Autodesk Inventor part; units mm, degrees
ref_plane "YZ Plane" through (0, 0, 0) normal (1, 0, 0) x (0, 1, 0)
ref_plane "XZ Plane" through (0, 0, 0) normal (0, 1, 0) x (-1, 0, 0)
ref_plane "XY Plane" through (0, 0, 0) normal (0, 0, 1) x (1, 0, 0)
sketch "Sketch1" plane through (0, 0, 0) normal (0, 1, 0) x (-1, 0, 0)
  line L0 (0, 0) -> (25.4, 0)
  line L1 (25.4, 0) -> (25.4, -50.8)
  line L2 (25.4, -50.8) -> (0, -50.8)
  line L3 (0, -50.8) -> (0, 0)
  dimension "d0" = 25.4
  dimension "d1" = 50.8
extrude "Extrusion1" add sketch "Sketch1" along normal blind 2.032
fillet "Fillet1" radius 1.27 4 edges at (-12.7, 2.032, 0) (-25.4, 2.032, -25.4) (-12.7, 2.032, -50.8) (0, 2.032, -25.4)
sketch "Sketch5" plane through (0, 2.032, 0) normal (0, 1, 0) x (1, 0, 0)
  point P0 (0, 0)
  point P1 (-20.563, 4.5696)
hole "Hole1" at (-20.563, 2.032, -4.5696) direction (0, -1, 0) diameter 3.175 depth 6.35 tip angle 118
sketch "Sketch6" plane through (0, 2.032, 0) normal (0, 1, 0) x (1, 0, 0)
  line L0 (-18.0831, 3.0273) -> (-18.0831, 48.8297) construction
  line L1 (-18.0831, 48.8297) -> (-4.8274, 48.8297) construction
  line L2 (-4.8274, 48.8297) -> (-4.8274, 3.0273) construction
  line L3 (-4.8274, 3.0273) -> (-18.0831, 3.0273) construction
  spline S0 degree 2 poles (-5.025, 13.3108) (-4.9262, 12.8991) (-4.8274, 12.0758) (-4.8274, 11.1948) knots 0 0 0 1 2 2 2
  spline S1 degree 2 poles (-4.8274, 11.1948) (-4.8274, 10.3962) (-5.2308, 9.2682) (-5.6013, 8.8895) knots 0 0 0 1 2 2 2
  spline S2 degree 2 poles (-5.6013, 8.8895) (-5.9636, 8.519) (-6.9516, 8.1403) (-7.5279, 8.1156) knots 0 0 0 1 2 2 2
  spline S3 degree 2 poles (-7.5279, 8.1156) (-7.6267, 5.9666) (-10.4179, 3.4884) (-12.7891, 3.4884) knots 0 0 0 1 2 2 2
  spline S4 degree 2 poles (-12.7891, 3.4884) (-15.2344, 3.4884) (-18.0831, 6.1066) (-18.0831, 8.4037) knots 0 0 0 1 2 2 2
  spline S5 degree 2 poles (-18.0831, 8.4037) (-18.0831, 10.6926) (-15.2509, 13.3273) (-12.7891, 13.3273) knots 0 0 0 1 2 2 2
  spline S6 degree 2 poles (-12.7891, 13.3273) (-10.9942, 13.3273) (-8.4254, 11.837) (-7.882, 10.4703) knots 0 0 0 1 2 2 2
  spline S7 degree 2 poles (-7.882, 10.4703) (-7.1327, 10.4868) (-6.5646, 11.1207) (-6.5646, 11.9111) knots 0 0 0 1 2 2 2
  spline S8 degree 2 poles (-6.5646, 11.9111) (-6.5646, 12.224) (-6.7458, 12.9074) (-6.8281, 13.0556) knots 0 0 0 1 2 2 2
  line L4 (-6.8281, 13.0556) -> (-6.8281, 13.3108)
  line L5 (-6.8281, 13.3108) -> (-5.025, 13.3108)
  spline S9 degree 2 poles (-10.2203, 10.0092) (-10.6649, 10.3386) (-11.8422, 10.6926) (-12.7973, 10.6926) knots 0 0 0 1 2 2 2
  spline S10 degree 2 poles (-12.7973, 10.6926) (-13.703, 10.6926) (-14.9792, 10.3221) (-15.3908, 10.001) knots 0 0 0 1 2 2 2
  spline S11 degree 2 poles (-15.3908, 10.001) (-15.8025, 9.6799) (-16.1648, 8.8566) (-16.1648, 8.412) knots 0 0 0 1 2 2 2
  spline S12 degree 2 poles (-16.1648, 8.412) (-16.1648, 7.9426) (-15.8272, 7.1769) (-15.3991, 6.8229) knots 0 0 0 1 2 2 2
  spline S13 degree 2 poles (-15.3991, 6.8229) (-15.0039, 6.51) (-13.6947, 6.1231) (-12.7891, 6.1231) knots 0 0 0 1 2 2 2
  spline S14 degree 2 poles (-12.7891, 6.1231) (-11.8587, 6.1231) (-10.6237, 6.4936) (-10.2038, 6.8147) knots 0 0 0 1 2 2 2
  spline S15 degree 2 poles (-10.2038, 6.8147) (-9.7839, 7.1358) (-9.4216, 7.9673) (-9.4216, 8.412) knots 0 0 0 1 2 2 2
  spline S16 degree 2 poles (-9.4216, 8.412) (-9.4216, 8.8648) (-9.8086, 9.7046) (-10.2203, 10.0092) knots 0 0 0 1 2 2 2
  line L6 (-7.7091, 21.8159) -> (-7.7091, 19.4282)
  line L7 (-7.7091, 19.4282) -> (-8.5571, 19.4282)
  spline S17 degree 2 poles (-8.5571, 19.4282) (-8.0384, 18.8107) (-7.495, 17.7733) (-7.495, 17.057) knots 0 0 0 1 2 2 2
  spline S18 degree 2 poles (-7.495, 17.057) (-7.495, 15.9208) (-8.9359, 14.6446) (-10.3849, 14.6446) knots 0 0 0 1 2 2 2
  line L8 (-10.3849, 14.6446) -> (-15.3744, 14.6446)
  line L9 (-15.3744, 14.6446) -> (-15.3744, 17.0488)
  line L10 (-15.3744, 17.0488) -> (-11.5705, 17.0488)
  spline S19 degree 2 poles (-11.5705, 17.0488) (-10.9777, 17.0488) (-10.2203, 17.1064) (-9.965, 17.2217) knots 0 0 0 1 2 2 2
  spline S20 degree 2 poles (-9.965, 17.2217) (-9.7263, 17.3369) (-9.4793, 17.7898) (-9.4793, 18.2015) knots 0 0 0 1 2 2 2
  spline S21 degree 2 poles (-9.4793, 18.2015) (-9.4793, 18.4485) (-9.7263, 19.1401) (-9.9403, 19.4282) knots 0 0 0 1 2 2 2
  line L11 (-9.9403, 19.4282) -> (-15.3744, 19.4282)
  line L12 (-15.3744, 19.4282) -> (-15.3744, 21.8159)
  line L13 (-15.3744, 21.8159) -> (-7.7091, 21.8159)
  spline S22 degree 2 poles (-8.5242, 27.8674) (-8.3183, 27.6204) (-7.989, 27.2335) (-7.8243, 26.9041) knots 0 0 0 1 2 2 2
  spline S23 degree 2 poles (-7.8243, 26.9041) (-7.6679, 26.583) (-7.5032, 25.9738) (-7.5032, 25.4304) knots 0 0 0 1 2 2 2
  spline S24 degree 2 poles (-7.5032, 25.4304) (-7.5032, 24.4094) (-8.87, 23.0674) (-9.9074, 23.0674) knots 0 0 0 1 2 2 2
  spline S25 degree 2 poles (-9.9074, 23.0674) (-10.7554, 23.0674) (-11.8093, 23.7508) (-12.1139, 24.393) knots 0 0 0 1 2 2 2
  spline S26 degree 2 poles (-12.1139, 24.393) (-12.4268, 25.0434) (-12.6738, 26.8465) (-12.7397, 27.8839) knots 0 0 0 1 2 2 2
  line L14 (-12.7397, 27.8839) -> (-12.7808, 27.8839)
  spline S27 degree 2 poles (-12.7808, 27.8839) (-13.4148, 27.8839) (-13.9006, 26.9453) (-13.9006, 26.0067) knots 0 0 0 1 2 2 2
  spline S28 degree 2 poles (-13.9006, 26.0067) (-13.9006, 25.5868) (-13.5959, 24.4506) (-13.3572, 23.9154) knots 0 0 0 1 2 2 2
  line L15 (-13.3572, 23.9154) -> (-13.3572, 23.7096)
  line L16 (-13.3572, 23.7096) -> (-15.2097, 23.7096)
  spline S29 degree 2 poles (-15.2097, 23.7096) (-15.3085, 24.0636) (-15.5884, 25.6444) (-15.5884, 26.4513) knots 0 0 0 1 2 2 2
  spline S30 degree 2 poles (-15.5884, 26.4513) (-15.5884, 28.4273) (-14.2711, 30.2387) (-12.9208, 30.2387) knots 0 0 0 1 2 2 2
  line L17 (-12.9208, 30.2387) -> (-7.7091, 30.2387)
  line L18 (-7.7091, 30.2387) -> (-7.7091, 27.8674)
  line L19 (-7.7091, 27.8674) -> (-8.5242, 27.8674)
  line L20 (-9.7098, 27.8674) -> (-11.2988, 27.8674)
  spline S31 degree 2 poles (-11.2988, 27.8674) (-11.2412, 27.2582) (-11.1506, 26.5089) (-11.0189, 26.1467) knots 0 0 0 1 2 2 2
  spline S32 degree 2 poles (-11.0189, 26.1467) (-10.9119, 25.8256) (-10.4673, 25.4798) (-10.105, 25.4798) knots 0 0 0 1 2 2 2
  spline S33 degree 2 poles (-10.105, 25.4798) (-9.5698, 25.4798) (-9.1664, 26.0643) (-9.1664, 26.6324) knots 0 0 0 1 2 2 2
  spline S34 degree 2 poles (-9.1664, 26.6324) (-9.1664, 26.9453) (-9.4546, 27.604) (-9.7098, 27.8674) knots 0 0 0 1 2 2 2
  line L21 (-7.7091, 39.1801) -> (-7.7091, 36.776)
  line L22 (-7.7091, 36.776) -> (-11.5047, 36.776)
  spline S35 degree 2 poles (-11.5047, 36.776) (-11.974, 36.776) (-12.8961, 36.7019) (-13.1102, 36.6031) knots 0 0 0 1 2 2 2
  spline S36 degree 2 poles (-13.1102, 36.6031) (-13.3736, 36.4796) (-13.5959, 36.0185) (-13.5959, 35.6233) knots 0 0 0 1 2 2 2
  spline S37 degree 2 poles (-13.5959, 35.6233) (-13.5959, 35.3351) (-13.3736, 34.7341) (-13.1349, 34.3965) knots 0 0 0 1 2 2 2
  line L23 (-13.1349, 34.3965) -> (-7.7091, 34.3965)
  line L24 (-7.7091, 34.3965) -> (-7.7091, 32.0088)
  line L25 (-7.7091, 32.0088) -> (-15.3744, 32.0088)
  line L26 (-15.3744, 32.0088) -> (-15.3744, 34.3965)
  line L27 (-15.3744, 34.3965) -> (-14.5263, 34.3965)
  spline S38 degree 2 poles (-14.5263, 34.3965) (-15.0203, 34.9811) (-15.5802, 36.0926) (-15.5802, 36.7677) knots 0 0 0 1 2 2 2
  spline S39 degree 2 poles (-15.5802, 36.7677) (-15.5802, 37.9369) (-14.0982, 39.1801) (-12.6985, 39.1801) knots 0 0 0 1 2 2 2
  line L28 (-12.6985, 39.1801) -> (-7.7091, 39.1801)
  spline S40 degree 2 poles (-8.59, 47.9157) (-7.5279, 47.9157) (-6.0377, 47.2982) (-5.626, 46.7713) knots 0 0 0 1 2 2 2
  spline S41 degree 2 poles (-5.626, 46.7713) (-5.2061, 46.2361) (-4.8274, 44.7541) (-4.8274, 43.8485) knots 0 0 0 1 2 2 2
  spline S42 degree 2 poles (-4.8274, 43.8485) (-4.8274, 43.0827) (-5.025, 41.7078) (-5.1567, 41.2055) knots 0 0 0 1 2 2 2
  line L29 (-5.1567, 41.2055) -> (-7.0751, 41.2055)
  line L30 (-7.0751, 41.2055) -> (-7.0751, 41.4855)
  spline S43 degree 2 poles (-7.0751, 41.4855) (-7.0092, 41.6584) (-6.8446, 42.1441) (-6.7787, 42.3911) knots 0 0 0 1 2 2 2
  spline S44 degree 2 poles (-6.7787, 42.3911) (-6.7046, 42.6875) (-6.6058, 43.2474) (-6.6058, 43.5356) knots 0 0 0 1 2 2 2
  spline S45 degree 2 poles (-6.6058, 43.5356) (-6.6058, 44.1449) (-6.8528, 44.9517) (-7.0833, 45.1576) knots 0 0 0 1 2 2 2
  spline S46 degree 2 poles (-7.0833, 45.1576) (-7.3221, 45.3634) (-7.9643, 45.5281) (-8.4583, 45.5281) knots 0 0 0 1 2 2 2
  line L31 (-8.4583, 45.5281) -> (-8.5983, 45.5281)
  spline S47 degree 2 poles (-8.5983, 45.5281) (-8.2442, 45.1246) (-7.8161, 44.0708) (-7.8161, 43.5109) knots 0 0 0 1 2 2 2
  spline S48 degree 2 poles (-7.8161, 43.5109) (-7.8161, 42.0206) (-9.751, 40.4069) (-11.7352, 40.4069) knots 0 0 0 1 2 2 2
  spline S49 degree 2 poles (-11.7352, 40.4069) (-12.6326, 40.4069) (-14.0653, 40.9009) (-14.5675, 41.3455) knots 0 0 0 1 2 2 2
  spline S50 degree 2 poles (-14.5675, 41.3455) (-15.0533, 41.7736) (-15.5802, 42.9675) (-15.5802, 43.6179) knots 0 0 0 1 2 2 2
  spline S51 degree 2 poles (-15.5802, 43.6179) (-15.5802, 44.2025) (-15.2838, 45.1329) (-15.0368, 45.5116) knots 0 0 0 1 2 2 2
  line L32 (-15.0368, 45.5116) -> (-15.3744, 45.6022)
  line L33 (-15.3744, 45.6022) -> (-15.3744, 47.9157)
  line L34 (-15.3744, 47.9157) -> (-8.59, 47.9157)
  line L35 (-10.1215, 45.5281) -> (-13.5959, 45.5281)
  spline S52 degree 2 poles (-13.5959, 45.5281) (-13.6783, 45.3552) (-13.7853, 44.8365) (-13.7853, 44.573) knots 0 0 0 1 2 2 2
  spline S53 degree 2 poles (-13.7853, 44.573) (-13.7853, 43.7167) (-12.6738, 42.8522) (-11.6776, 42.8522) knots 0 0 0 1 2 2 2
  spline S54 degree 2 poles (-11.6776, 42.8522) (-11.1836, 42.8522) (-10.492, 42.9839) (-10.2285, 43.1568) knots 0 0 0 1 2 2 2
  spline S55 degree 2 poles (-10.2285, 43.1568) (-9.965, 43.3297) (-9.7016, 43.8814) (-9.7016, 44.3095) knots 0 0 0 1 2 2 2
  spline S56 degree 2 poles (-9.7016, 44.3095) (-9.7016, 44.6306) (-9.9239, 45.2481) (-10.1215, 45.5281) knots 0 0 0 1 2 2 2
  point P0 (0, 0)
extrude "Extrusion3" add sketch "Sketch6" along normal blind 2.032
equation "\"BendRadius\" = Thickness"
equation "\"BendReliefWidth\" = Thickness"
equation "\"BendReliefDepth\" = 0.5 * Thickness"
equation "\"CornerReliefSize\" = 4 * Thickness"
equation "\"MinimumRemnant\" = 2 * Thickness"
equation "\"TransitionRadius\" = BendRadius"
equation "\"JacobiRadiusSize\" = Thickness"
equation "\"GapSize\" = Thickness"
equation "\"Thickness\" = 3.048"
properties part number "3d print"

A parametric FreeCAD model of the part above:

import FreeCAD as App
import Part
import Sketcher

V = App.Vector
Q = App.Units.Quantity


def edges_at(feature, points):
    """Names of the edges that pass closest to the given points."""
    edges = feature.Shape.Edges
    near = lambda p: min(range(len(edges)), key=lambda i: edges[i].distToShape(Part.Vertex(*p))[0])
    return sorted({f"Edge{near(p) + 1}" for p in points})

doc = App.newDocument("Part")
body = doc.addObject("PartDesign::Body", "Body")

# Sketch on XZ plane
sketch1 = body.newObject("Sketcher::SketchObject", "Sketch")
sketch1.AttachmentSupport = (doc.getObject("XZ_Plane"), [""])
sketch1.MapMode = "FlatFace"
sketch1.addGeometry(Part.LineSegment(V(-25, 0, 0), V(0, 0, 0)), False)
sketch1.addGeometry(Part.LineSegment(V(0, 0, 0), V(0, -51, 0)), False)
sketch1.addGeometry(Part.LineSegment(V(0, -51, 0), V(-25, -51, 0)), False)
sketch1.addGeometry(Part.LineSegment(V(-25, -51, 0), V(-25, 0, 0)), False)
sketch1.addConstraint(Sketcher.Constraint("Coincident", 0, 2, 1, 1))
sketch1.addConstraint(Sketcher.Constraint("Coincident", 1, 2, 2, 1))
sketch1.addConstraint(Sketcher.Constraint("Coincident", 2, 2, 3, 1))
sketch1.addConstraint(Sketcher.Constraint("Coincident", 3, 2, 0, 1))
sketch1.addConstraint(Sketcher.Constraint("Horizontal", 0))
sketch1.addConstraint(Sketcher.Constraint("Vertical", 1))
sketch1.addConstraint(Sketcher.Constraint("Horizontal", 2))
sketch1.addConstraint(Sketcher.Constraint("Vertical", 3))
sketch1.addConstraint(Sketcher.Constraint("Coincident", 0, 2, -1, 1))
sketch1.addConstraint(Sketcher.Constraint("DistanceX", 0, 1, 0, 2, Q("1 in")))
sketch1.addConstraint(Sketcher.Constraint("DistanceY", 1, 2, 1, 1, Q("2 in")))
pad1 = body.newObject("PartDesign::Pad", "Pad")
pad1.Profile = sketch1
pad1.Length = Q("0.08 in")
pad1.Reversed = True
doc.recompute()

fillet = body.newObject("PartDesign::Fillet", "Fillet")
fillet.Base = (pad1, edges_at(pad1, [
    (-12.7, 2.032, 0),
    (-25.4, 2.032, -25.4),
    (-12.7, 2.032, -50.8),
    (0, 2.032, -25.4),
]))
fillet.Radius = Q("0.05 in")

# Sketch on XZ plane
sketch2 = body.newObject("Sketcher::SketchObject", "Sketch001")
sketch2.AttachmentSupport = (doc.getObject("XZ_Plane"), [""])
sketch2.MapMode = "FlatFace"
sketch2.AttachmentOffset = App.Placement(V(0, 0, -0.08 * 25.4), App.Rotation())
sketch2.addGeometry(Part.Circle(V(-20.6, -4.6, 0), V(0, 0, 1), 1.6), False)
sketch2.addConstraint(Sketcher.Constraint("Diameter", 0, Q("0.125 in")))
sketch2.addConstraint(Sketcher.Constraint("DistanceY", 0, 3, -1, 1, Q("0.1799 in")))
sketch2.addConstraint(Sketcher.Constraint("DistanceX", 0, 3, -1, 1, 20.563))
doc.recompute()
hole = body.newObject("PartDesign::Hole", "Hole")
hole.Profile = sketch2
hole.ThreadType = "None"
hole.Diameter = Q("0.125 in")
hole.DepthType = "Dimension"
hole.Depth = Q("0.25 in")
hole.DrillPoint = "Angled"
hole.DrillPointAngle = 118
hole.Reversed = True

# Sketch on XZ plane
sketch3 = body.newObject("Sketcher::SketchObject", "Sketch002")
sketch3.AttachmentSupport = (doc.getObject("XZ_Plane"), [""])
sketch3.MapMode = "FlatFace"
sketch3.AttachmentOffset = App.Placement(V(0, 0, -0.08 * 25.4), App.Rotation())
sketch3.addGeometry(Part.BSplineCurve([V(-5.025, -13.3108, 0), V(-4.9262, -12.8991, 0), V(-4.8274, -12.0758, 0), V(-4.8274, -11.1948, 0)], [3, 1, 3], [0, 1, 2], False, 2, [1, 1, 1, 1], False), False)
sketch3.addGeometry(Part.LineSegment(V(-5.025, -13.3108, 0), V(-6.8281, -13.3108, 0)), False)
sketch3.addGeometry(Part.LineSegment(V(-6.8281, -13.3108, 0), V(-6.8281, -13.0556, 0)), False)
sketch3.addGeometry(Part.BSplineCurve([V(-6.5646, -11.9111, 0), V(-6.5646, -12.224, 0), V(-6.7458, -12.9074, 0), V(-6.8281, -13.0556, 0)], [3, 1, 3], [0, 1, 2], False, 2, [1, 1, 1, 1], False), False)
sketch3.addGeometry(Part.BSplineCurve([V(-7.882, -10.4703, 0), V(-7.1327, -10.4868, 0), V(-6.5646, -11.1207, 0), V(-6.5646, -11.9111, 0)], [3, 1, 3], [0, 1, 2], False, 2, [1, 1, 1, 1], False), False)
sketch3.addGeometry(Part.BSplineCurve([V(-12.7891, -13.3273, 0), V(-10.9942, -13.3273, 0), V(-8.4254, -11.837, 0), V(-7.882, -10.4703, 0)], [3, 1, 3], [0, 1, 2], False, 2, [1, 1, 1, 1], False), False)
sketch3.addGeometry(Part.BSplineCurve([V(-18.0831, -8.4037, 0), V(-18.0831, -10.6926, 0), V(-15.2509, -13.3273, 0), V(-12.7891, -13.3273, 0)], [3, 1, 3], [0, 1, 2], False, 2, [1, 1, 1, 1], False), False)
sketch3.addGeometry(Part.BSplineCurve([V(-12.7891, -3.4884, 0), V(-15.2344, -3.4884, 0), V(-18.0831, -6.1066, 0), V(-18.0831, -8.4037, 0)], [3, 1, 3], [0, 1, 2], False, 2, [1, 1, 1, 1], False), False)
sketch3.addGeometry(Part.BSplineCurve([V(-7.5279, -8.1156, 0), V(-7.6267, -5.9666, 0), V(-10.4179, -3.4884, 0), V(-12.7891, -3.4884, 0)], [3, 1, 3], [0, 1, 2], False, 2, [1, 1, 1, 1], False), False)
sketch3.addGeometry(Part.BSplineCurve([V(-5.6013, -8.8895, 0), V(-5.9636, -8.519, 0), V(-6.9516, -8.1403, 0), V(-7.5279, -8.1156, 0)], [3, 1, 3], [0, 1, 2], False, 2, [1, 1, 1, 1], False), False)
sketch3.addGeometry(Part.BSplineCurve([V(-4.8274, -11.1948, 0), V(-4.8274, -10.3962, 0), V(-5.2308, -9.2682, 0), V(-5.6013, -8.8895, 0)], [3, 1, 3], [0, 1, 2], False, 2, [1, 1, 1, 1], False), False)
sketch3.addGeometry(Part.BSplineCurve([V(-10.2203, -10.0092, 0), V(-10.6649, -10.3386, 0), V(-11.8422, -10.6926, 0), V(-12.7973, -10.6926, 0)], [3, 1, 3], [0, 1, 2], False, 2, [1, 1, 1, 1], False), False)
sketch3.addGeometry(Part.BSplineCurve([V(-9.4216, -8.412, 0), V(-9.4216, -8.8648, 0), V(-9.8086, -9.7046, 0), V(-10.2203, -10.0092, 0)], [3, 1, 3], [0, 1, 2], False, 2, [1, 1, 1, 1], False), False)
sketch3.addGeometry(Part.BSplineCurve([V(-10.2038, -6.8147, 0), V(-9.7839, -7.1358, 0), V(-9.4216, -7.9673, 0), V(-9.4216, -8.412, 0)], [3, 1, 3], [0, 1, 2], False, 2, [1, 1, 1, 1], False), False)
sketch3.addGeometry(Part.BSplineCurve([V(-12.7891, -6.1231, 0), V(-11.8587, -6.1231, 0), V(-10.6237, -6.4936, 0), V(-10.2038, -6.8147, 0)], [3, 1, 3], [0, 1, 2], False, 2, [1, 1, 1, 1], False), False)
sketch3.addGeometry(Part.BSplineCurve([V(-15.3991, -6.8229, 0), V(-15.0039, -6.51, 0), V(-13.6947, -6.1231, 0), V(-12.7891, -6.1231, 0)], [3, 1, 3], [0, 1, 2], False, 2, [1, 1, 1, 1], False), False)
sketch3.addGeometry(Part.BSplineCurve([V(-16.1648, -8.412, 0), V(-16.1648, -7.9426, 0), V(-15.8272, -7.1769, 0), V(-15.3991, -6.8229, 0)], [3, 1, 3], [0, 1, 2], False, 2, [1, 1, 1, 1], False), False)
sketch3.addGeometry(Part.BSplineCurve([V(-15.3908, -10.001, 0), V(-15.8025, -9.6799, 0), V(-16.1648, -8.8566, 0), V(-16.1648, -8.412, 0)], [3, 1, 3], [0, 1, 2], False, 2, [1, 1, 1, 1], False), False)
sketch3.addGeometry(Part.BSplineCurve([V(-12.7973, -10.6926, 0), V(-13.703, -10.6926, 0), V(-14.9792, -10.3221, 0), V(-15.3908, -10.001, 0)], [3, 1, 3], [0, 1, 2], False, 2, [1, 1, 1, 1], False), False)
sketch3.addGeometry(Part.LineSegment(V(-7.7091, -19.4282, 0), V(-7.7091, -21.8159, 0)), False)
sketch3.addGeometry(Part.LineSegment(V(-7.7091, -21.8159, 0), V(-15.3744, -21.8159, 0)), False)
sketch3.addGeometry(Part.LineSegment(V(-15.3744, -21.8159, 0), V(-15.3744, -19.4282, 0)), False)
sketch3.addGeometry(Part.LineSegment(V(-15.3744, -19.4282, 0), V(-9.9403, -19.4282, 0)), False)
sketch3.addGeometry(Part.BSplineCurve([V(-9.4793, -18.2015, 0), V(-9.4793, -18.4485, 0), V(-9.7263, -19.1401, 0), V(-9.9403, -19.4282, 0)], [3, 1, 3], [0, 1, 2], False, 2, [1, 1, 1, 1], False), False)
sketch3.addGeometry(Part.BSplineCurve([V(-9.965, -17.2217, 0), V(-9.7263, -17.3369, 0), V(-9.4793, -17.7898, 0), V(-9.4793, -18.2015, 0)], [3, 1, 3], [0, 1, 2], False, 2, [1, 1, 1, 1], False), False)
sketch3.addGeometry(Part.BSplineCurve([V(-11.5705, -17.0488, 0), V(-10.9777, -17.0488, 0), V(-10.2203, -17.1064, 0), V(-9.965, -17.2217, 0)], [3, 1, 3], [0, 1, 2], False, 2, [1, 1, 1, 1], False), False)
sketch3.addGeometry(Part.LineSegment(V(-11.5705, -17.0488, 0), V(-15.3744, -17.0488, 0)), False)
sketch3.addGeometry(Part.LineSegment(V(-15.3744, -17.0488, 0), V(-15.3744, -14.6446, 0)), False)
sketch3.addGeometry(Part.LineSegment(V(-15.3744, -14.6446, 0), V(-10.3849, -14.6446, 0)), False)
sketch3.addGeometry(Part.BSplineCurve([V(-7.495, -17.057, 0), V(-7.495, -15.9208, 0), V(-8.9359, -14.6446, 0), V(-10.3849, -14.6446, 0)], [3, 1, 3], [0, 1, 2], False, 2, [1, 1, 1, 1], False), False)
sketch3.addGeometry(Part.BSplineCurve([V(-8.5571, -19.4282, 0), V(-8.0384, -18.8107, 0), V(-7.495, -17.7733, 0), V(-7.495, -17.057, 0)], [3, 1, 3], [0, 1, 2], False, 2, [1, 1, 1, 1], False), False)
sketch3.addGeometry(Part.LineSegment(V(-8.5571, -19.4282, 0), V(-7.7091, -19.4282, 0)), False)
sketch3.addGeometry(Part.BSplineCurve([V(-8.5242, -27.8674, 0), V(-8.3183, -27.6204, 0), V(-7.989, -27.2335, 0), V(-7.8243, -26.9041, 0)], [3, 1, 3], [0, 1, 2], False, 2, [1, 1, 1, 1], False), False)
sketch3.addGeometry(Part.LineSegment(V(-8.5242, -27.8674, 0), V(-7.7091, -27.8674, 0)), False)
sketch3.addGeometry(Part.LineSegment(V(-7.7091, -27.8674, 0), V(-7.7091, -30.2387, 0)), False)
sketch3.addGeometry(Part.LineSegment(V(-7.7091, -30.2387, 0), V(-12.9208, -30.2387, 0)), False)
sketch3.addGeometry(Part.BSplineCurve([V(-15.5884, -26.4513, 0), V(-15.5884, -28.4273, 0), V(-14.2711, -30.2387, 0), V(-12.9208, -30.2387, 0)], [3, 1, 3], [0, 1, 2], False, 2, [1, 1, 1, 1], False), False)
sketch3.addGeometry(Part.BSplineCurve([V(-15.2097, -23.7096, 0), V(-15.3085, -24.0636, 0), V(-15.5884, -25.6444, 0), V(-15.5884, -26.4513, 0)], [3, 1, 3], [0, 1, 2], False, 2, [1, 1, 1, 1], False), False)
sketch3.addGeometry(Part.LineSegment(V(-15.2097, -23.7096, 0), V(-13.3572, -23.7096, 0)), False)
sketch3.addGeometry(Part.LineSegment(V(-13.3572, -23.7096, 0), V(-13.3572, -23.9154, 0)), False)
sketch3.addGeometry(Part.BSplineCurve([V(-13.9006, -26.0067, 0), V(-13.9006, -25.5868, 0), V(-13.5959, -24.4506, 0), V(-13.3572, -23.9154, 0)], [3, 1, 3], [0, 1, 2], False, 2, [1, 1, 1, 1], False), False)
sketch3.addGeometry(Part.BSplineCurve([V(-12.7808, -27.8839, 0), V(-13.4148, -27.8839, 0), V(-13.9006, -26.9453, 0), V(-13.9006, -26.0067, 0)], [3, 1, 3], [0, 1, 2], False, 2, [1, 1, 1, 1], False), False)
sketch3.addGeometry(Part.LineSegment(V(-12.7808, -27.8839, 0), V(-12.7397, -27.8839, 0)), False)
sketch3.addGeometry(Part.BSplineCurve([V(-12.1139, -24.393, 0), V(-12.4268, -25.0434, 0), V(-12.6738, -26.8465, 0), V(-12.7397, -27.8839, 0)], [3, 1, 3], [0, 1, 2], False, 2, [1, 1, 1, 1], False), False)
sketch3.addGeometry(Part.BSplineCurve([V(-9.9074, -23.0674, 0), V(-10.7554, -23.0674, 0), V(-11.8093, -23.7508, 0), V(-12.1139, -24.393, 0)], [3, 1, 3], [0, 1, 2], False, 2, [1, 1, 1, 1], False), False)
sketch3.addGeometry(Part.BSplineCurve([V(-7.5032, -25.4304, 0), V(-7.5032, -24.4094, 0), V(-8.87, -23.0674, 0), V(-9.9074, -23.0674, 0)], [3, 1, 3], [0, 1, 2], False, 2, [1, 1, 1, 1], False), False)
sketch3.addGeometry(Part.BSplineCurve([V(-7.8243, -26.9041, 0), V(-7.6679, -26.583, 0), V(-7.5032, -25.9738, 0), V(-7.5032, -25.4304, 0)], [3, 1, 3], [0, 1, 2], False, 2, [1, 1, 1, 1], False), False)
sketch3.addGeometry(Part.LineSegment(V(-11.2988, -27.8674, 0), V(-9.7098, -27.8674, 0)), False)
sketch3.addGeometry(Part.BSplineCurve([V(-9.1664, -26.6324, 0), V(-9.1664, -26.9453, 0), V(-9.4546, -27.604, 0), V(-9.7098, -27.8674, 0)], [3, 1, 3], [0, 1, 2], False, 2, [1, 1, 1, 1], False), False)
sketch3.addGeometry(Part.BSplineCurve([V(-10.105, -25.4798, 0), V(-9.5698, -25.4798, 0), V(-9.1664, -26.0643, 0), V(-9.1664, -26.6324, 0)], [3, 1, 3], [0, 1, 2], False, 2, [1, 1, 1, 1], False), False)
sketch3.addGeometry(Part.BSplineCurve([V(-11.0189, -26.1467, 0), V(-10.9119, -25.8256, 0), V(-10.4673, -25.4798, 0), V(-10.105, -25.4798, 0)], [3, 1, 3], [0, 1, 2], False, 2, [1, 1, 1, 1], False), False)
sketch3.addGeometry(Part.BSplineCurve([V(-11.2988, -27.8674, 0), V(-11.2412, -27.2582, 0), V(-11.1506, -26.5089, 0), V(-11.0189, -26.1467, 0)], [3, 1, 3], [0, 1, 2], False, 2, [1, 1, 1, 1], False), False)
sketch3.addGeometry(Part.LineSegment(V(-7.7091, -36.776, 0), V(-7.7091, -39.1801, 0)), False)
sketch3.addGeometry(Part.LineSegment(V(-7.7091, -39.1801, 0), V(-12.6985, -39.1801, 0)), False)
sketch3.addGeometry(Part.BSplineCurve([V(-15.5802, -36.7677, 0), V(-15.5802, -37.9369, 0), V(-14.0982, -39.1801, 0), V(-12.6985, -39.1801, 0)], [3, 1, 3], [0, 1, 2], False, 2, [1, 1, 1, 1], False), False)
sketch3.addGeometry(Part.BSplineCurve([V(-14.5263, -34.3965, 0), V(-15.0203, -34.9811, 0), V(-15.5802, -36.0926, 0), V(-15.5802, -36.7677, 0)], [3, 1, 3], [0, 1, 2], False, 2, [1, 1, 1, 1], False), False)
sketch3.addGeometry(Part.LineSegment(V(-14.5263, -34.3965, 0), V(-15.3744, -34.3965, 0)), False)
sketch3.addGeometry(Part.LineSegment(V(-15.3744, -34.3965, 0), V(-15.3744, -32.0088, 0)), False)
sketch3.addGeometry(Part.LineSegment(V(-15.3744, -32.0088, 0), V(-7.7091, -32.0088, 0)), False)
sketch3.addGeometry(Part.LineSegment(V(-7.7091, -32.0088, 0), V(-7.7091, -34.3965, 0)), False)
sketch3.addGeometry(Part.LineSegment(V(-7.7091, -34.3965, 0), V(-13.1349, -34.3965, 0)), False)
sketch3.addGeometry(Part.BSplineCurve([V(-13.5959, -35.6233, 0), V(-13.5959, -35.3351, 0), V(-13.3736, -34.7341, 0), V(-13.1349, -34.3965, 0)], [3, 1, 3], [0, 1, 2], False, 2, [1, 1, 1, 1], False), False)
sketch3.addGeometry(Part.BSplineCurve([V(-13.1102, -36.6031, 0), V(-13.3736, -36.4796, 0), V(-13.5959, -36.0185, 0), V(-13.5959, -35.6233, 0)], [3, 1, 3], [0, 1, 2], False, 2, [1, 1, 1, 1], False), False)
sketch3.addGeometry(Part.BSplineCurve([V(-11.5047, -36.776, 0), V(-11.974, -36.776, 0), V(-12.8961, -36.7019, 0), V(-13.1102, -36.6031, 0)], [3, 1, 3], [0, 1, 2], False, 2, [1, 1, 1, 1], False), False)
sketch3.addGeometry(Part.LineSegment(V(-11.5047, -36.776, 0), V(-7.7091, -36.776, 0)), False)
sketch3.addGeometry(Part.BSplineCurve([V(-8.59, -47.9157, 0), V(-7.5279, -47.9157, 0), V(-6.0377, -47.2982, 0), V(-5.626, -46.7713, 0)], [3, 1, 3], [0, 1, 2], False, 2, [1, 1, 1, 1], False), False)
sketch3.addGeometry(Part.LineSegment(V(-8.59, -47.9157, 0), V(-15.3744, -47.9157, 0)), False)
sketch3.addGeometry(Part.LineSegment(V(-15.3744, -47.9157, 0), V(-15.3744, -45.6022, 0)), False)
sketch3.addGeometry(Part.LineSegment(V(-15.3744, -45.6022, 0), V(-15.0368, -45.5116, 0)), False)
sketch3.addGeometry(Part.BSplineCurve([V(-15.5802, -43.6179, 0), V(-15.5802, -44.2025, 0), V(-15.2838, -45.1329, 0), V(-15.0368, -45.5116, 0)], [3, 1, 3], [0, 1, 2], False, 2, [1, 1, 1, 1], False), False)
sketch3.addGeometry(Part.BSplineCurve([V(-14.5675, -41.3455, 0), V(-15.0533, -41.7736, 0), V(-15.5802, -42.9675, 0), V(-15.5802, -43.6179, 0)], [3, 1, 3], [0, 1, 2], False, 2, [1, 1, 1, 1], False), False)
sketch3.addGeometry(Part.BSplineCurve([V(-11.7352, -40.4069, 0), V(-12.6326, -40.4069, 0), V(-14.0653, -40.9009, 0), V(-14.5675, -41.3455, 0)], [3, 1, 3], [0, 1, 2], False, 2, [1, 1, 1, 1], False), False)
sketch3.addGeometry(Part.BSplineCurve([V(-7.8161, -43.5109, 0), V(-7.8161, -42.0206, 0), V(-9.751, -40.4069, 0), V(-11.7352, -40.4069, 0)], [3, 1, 3], [0, 1, 2], False, 2, [1, 1, 1, 1], False), False)
sketch3.addGeometry(Part.BSplineCurve([V(-8.5983, -45.5281, 0), V(-8.2442, -45.1246, 0), V(-7.8161, -44.0708, 0), V(-7.8161, -43.5109, 0)], [3, 1, 3], [0, 1, 2], False, 2, [1, 1, 1, 1], False), False)
sketch3.addGeometry(Part.LineSegment(V(-8.5983, -45.5281, 0), V(-8.4583, -45.5281, 0)), False)
sketch3.addGeometry(Part.BSplineCurve([V(-7.0833, -45.1576, 0), V(-7.3221, -45.3634, 0), V(-7.9643, -45.5281, 0), V(-8.4583, -45.5281, 0)], [3, 1, 3], [0, 1, 2], False, 2, [1, 1, 1, 1], False), False)
sketch3.addGeometry(Part.BSplineCurve([V(-6.6058, -43.5356, 0), V(-6.6058, -44.1449, 0), V(-6.8528, -44.9517, 0), V(-7.0833, -45.1576, 0)], [3, 1, 3], [0, 1, 2], False, 2, [1, 1, 1, 1], False), False)
sketch3.addGeometry(Part.BSplineCurve([V(-6.7787, -42.3911, 0), V(-6.7046, -42.6875, 0), V(-6.6058, -43.2474, 0), V(-6.6058, -43.5356, 0)], [3, 1, 3], [0, 1, 2], False, 2, [1, 1, 1, 1], False), False)
sketch3.addGeometry(Part.BSplineCurve([V(-7.0751, -41.4855, 0), V(-7.0092, -41.6584, 0), V(-6.8446, -42.1441, 0), V(-6.7787, -42.3911, 0)], [3, 1, 3], [0, 1, 2], False, 2, [1, 1, 1, 1], False), False)
sketch3.addGeometry(Part.LineSegment(V(-7.0751, -41.4855, 0), V(-7.0751, -41.2055, 0)), False)
sketch3.addGeometry(Part.LineSegment(V(-7.0751, -41.2055, 0), V(-5.1567, -41.2055, 0)), False)
sketch3.addGeometry(Part.BSplineCurve([V(-4.8274, -43.8485, 0), V(-4.8274, -43.0827, 0), V(-5.025, -41.7078, 0), V(-5.1567, -41.2055, 0)], [3, 1, 3], [0, 1, 2], False, 2, [1, 1, 1, 1], False), False)
sketch3.addGeometry(Part.BSplineCurve([V(-5.626, -46.7713, 0), V(-5.2061, -46.2361, 0), V(-4.8274, -44.7541, 0), V(-4.8274, -43.8485, 0)], [3, 1, 3], [0, 1, 2], False, 2, [1, 1, 1, 1], False), False)
sketch3.addGeometry(Part.LineSegment(V(-13.5959, -45.5281, 0), V(-10.1215, -45.5281, 0)), False)
sketch3.addGeometry(Part.BSplineCurve([V(-9.7016, -44.3095, 0), V(-9.7016, -44.6306, 0), V(-9.9239, -45.2481, 0), V(-10.1215, -45.5281, 0)], [3, 1, 3], [0, 1, 2], False, 2, [1, 1, 1, 1], False), False)
sketch3.addGeometry(Part.BSplineCurve([V(-10.2285, -43.1568, 0), V(-9.965, -43.3297, 0), V(-9.7016, -43.8814, 0), V(-9.7016, -44.3095, 0)], [3, 1, 3], [0, 1, 2], False, 2, [1, 1, 1, 1], False), False)
sketch3.addGeometry(Part.BSplineCurve([V(-11.6776, -42.8522, 0), V(-11.1836, -42.8522, 0), V(-10.492, -42.9839, 0), V(-10.2285, -43.1568, 0)], [3, 1, 3], [0, 1, 2], False, 2, [1, 1, 1, 1], False), False)
sketch3.addGeometry(Part.BSplineCurve([V(-13.7853, -44.573, 0), V(-13.7853, -43.7167, 0), V(-12.6738, -42.8522, 0), V(-11.6776, -42.8522, 0)], [3, 1, 3], [0, 1, 2], False, 2, [1, 1, 1, 1], False), False)
sketch3.addGeometry(Part.BSplineCurve([V(-13.5959, -45.5281, 0), V(-13.6783, -45.3552, 0), V(-13.7853, -44.8365, 0), V(-13.7853, -44.573, 0)], [3, 1, 3], [0, 1, 2], False, 2, [1, 1, 1, 1], False), False)
sketch3.addConstraint(Sketcher.Constraint("Block", 0))
sketch3.addConstraint(Sketcher.Constraint("Block", 3))
sketch3.addConstraint(Sketcher.Constraint("Block", 4))
sketch3.addConstraint(Sketcher.Constraint("Block", 5))
sketch3.addConstraint(Sketcher.Constraint("Block", 6))
sketch3.addConstraint(Sketcher.Constraint("Block", 7))
sketch3.addConstraint(Sketcher.Constraint("Block", 8))
sketch3.addConstraint(Sketcher.Constraint("Block", 9))
sketch3.addConstraint(Sketcher.Constraint("Block", 10))
sketch3.addConstraint(Sketcher.Constraint("Block", 11))
sketch3.addConstraint(Sketcher.Constraint("Block", 12))
sketch3.addConstraint(Sketcher.Constraint("Block", 13))
sketch3.addConstraint(Sketcher.Constraint("Block", 14))
sketch3.addConstraint(Sketcher.Constraint("Block", 15))
sketch3.addConstraint(Sketcher.Constraint("Block", 16))
sketch3.addConstraint(Sketcher.Constraint("Block", 17))
sketch3.addConstraint(Sketcher.Constraint("Block", 18))
sketch3.addConstraint(Sketcher.Constraint("Block", 23))
sketch3.addConstraint(Sketcher.Constraint("Block", 24))
sketch3.addConstraint(Sketcher.Constraint("Block", 25))
sketch3.addConstraint(Sketcher.Constraint("Block", 29))
sketch3.addConstraint(Sketcher.Constraint("Block", 30))
sketch3.addConstraint(Sketcher.Constraint("Block", 32))
sketch3.addConstraint(Sketcher.Constraint("Block", 36))
sketch3.addConstraint(Sketcher.Constraint("Block", 37))
sketch3.addConstraint(Sketcher.Constraint("Block", 40))
sketch3.addConstraint(Sketcher.Constraint("Block", 41))
sketch3.addConstraint(Sketcher.Constraint("Block", 43))
sketch3.addConstraint(Sketcher.Constraint("Block", 44))
sketch3.addConstraint(Sketcher.Constraint("Block", 45))
sketch3.addConstraint(Sketcher.Constraint("Block", 46))
sketch3.addConstraint(Sketcher.Constraint("Block", 48))
sketch3.addConstraint(Sketcher.Constraint("Block", 49))
sketch3.addConstraint(Sketcher.Constraint("Block", 50))
sketch3.addConstraint(Sketcher.Constraint("Block", 51))
sketch3.addConstraint(Sketcher.Constraint("Block", 54))
sketch3.addConstraint(Sketcher.Constraint("Block", 55))
sketch3.addConstraint(Sketcher.Constraint("Block", 61))
sketch3.addConstraint(Sketcher.Constraint("Block", 62))
sketch3.addConstraint(Sketcher.Constraint("Block", 63))
sketch3.addConstraint(Sketcher.Constraint("Block", 65))
sketch3.addConstraint(Sketcher.Constraint("Block", 69))
sketch3.addConstraint(Sketcher.Constraint("Block", 70))
sketch3.addConstraint(Sketcher.Constraint("Block", 71))
sketch3.addConstraint(Sketcher.Constraint("Block", 72))
sketch3.addConstraint(Sketcher.Constraint("Block", 73))
sketch3.addConstraint(Sketcher.Constraint("Block", 75))
sketch3.addConstraint(Sketcher.Constraint("Block", 76))
sketch3.addConstraint(Sketcher.Constraint("Block", 77))
sketch3.addConstraint(Sketcher.Constraint("Block", 78))
sketch3.addConstraint(Sketcher.Constraint("Block", 81))
sketch3.addConstraint(Sketcher.Constraint("Block", 82))
sketch3.addConstraint(Sketcher.Constraint("Block", 84))
sketch3.addConstraint(Sketcher.Constraint("Block", 85))
sketch3.addConstraint(Sketcher.Constraint("Block", 86))
sketch3.addConstraint(Sketcher.Constraint("Block", 87))
sketch3.addConstraint(Sketcher.Constraint("Block", 88))
sketch3.addConstraint(Sketcher.Constraint("Coincident", 0, 1, 1, 1))
sketch3.addConstraint(Sketcher.Constraint("Coincident", 1, 2, 2, 1))
sketch3.addConstraint(Sketcher.Constraint("Coincident", 2, 2, 3, 2))
sketch3.addConstraint(Sketcher.Constraint("Coincident", 19, 2, 20, 1))
sketch3.addConstraint(Sketcher.Constraint("Coincident", 20, 2, 21, 1))
sketch3.addConstraint(Sketcher.Constraint("Coincident", 21, 2, 22, 1))
sketch3.addConstraint(Sketcher.Constraint("Coincident", 22, 2, 23, 2))
sketch3.addConstraint(Sketcher.Constraint("Coincident", 25, 1, 26, 1))
sketch3.addConstraint(Sketcher.Constraint("Coincident", 26, 2, 27, 1))
sketch3.addConstraint(Sketcher.Constraint("Coincident", 27, 2, 28, 1))
sketch3.addConstraint(Sketcher.Constraint("Coincident", 28, 2, 29, 2))
sketch3.addConstraint(Sketcher.Constraint("Coincident", 30, 1, 31, 1))
sketch3.addConstraint(Sketcher.Constraint("Coincident", 31, 2, 19, 1))
sketch3.addConstraint(Sketcher.Constraint("Coincident", 32, 1, 33, 1))
sketch3.addConstraint(Sketcher.Constraint("Coincident", 33, 2, 34, 1))
sketch3.addConstraint(Sketcher.Constraint("Coincident", 34, 2, 35, 1))
sketch3.addConstraint(Sketcher.Constraint("Coincident", 35, 2, 36, 2))
sketch3.addConstraint(Sketcher.Constraint("Coincident", 37, 1, 38, 1))
sketch3.addConstraint(Sketcher.Constraint("Coincident", 38, 2, 39, 1))
sketch3.addConstraint(Sketcher.Constraint("Coincident", 39, 2, 40, 2))
sketch3.addConstraint(Sketcher.Constraint("Coincident", 41, 1, 42, 1))
sketch3.addConstraint(Sketcher.Constraint("Coincident", 42, 2, 43, 2))
sketch3.addConstraint(Sketcher.Constraint("Coincident", 47, 2, 48, 2))
sketch3.addConstraint(Sketcher.Constraint("Coincident", 51, 1, 47, 1))
sketch3.addConstraint(Sketcher.Constraint("Coincident", 52, 2, 53, 1))
sketch3.addConstraint(Sketcher.Constraint("Coincident", 53, 2, 54, 2))
sketch3.addConstraint(Sketcher.Constraint("Coincident", 55, 1, 56, 1))
sketch3.addConstraint(Sketcher.Constraint("Coincident", 56, 2, 57, 1))
sketch3.addConstraint(Sketcher.Constraint("Coincident", 57, 2, 58, 1))
sketch3.addConstraint(Sketcher.Constraint("Coincident", 58, 2, 59, 1))
sketch3.addConstraint(Sketcher.Constraint("Coincident", 59, 2, 60, 1))
sketch3.addConstraint(Sketcher.Constraint("Coincident", 60, 2, 61, 2))
sketch3.addConstraint(Sketcher.Constraint("Coincident", 63, 1, 64, 1))
sketch3.addConstraint(Sketcher.Constraint("Coincident", 64, 2, 52, 1))
sketch3.addConstraint(Sketcher.Constraint("Coincident", 65, 1, 66, 1))
sketch3.addConstraint(Sketcher.Constraint("Coincident", 66, 2, 67, 1))
sketch3.addConstraint(Sketcher.Constraint("Coincident", 67, 2, 68, 1))
sketch3.addConstraint(Sketcher.Constraint("Coincident", 68, 2, 69, 2))
sketch3.addConstraint(Sketcher.Constraint("Coincident", 73, 1, 74, 1))
sketch3.addConstraint(Sketcher.Constraint("Coincident", 74, 2, 75, 2))
sketch3.addConstraint(Sketcher.Constraint("Coincident", 78, 1, 79, 1))
sketch3.addConstraint(Sketcher.Constraint("Coincident", 79, 2, 80, 1))
sketch3.addConstraint(Sketcher.Constraint("Coincident", 80, 2, 81, 2))
sketch3.addConstraint(Sketcher.Constraint("Coincident", 83, 2, 84, 2))
sketch3.addConstraint(Sketcher.Constraint("Coincident", 88, 1, 83, 1))
sketch3.addConstraint(Sketcher.Constraint("Horizontal", 1))
sketch3.addConstraint(Sketcher.Constraint("Vertical", 2))
sketch3.addConstraint(Sketcher.Constraint("Vertical", 19))
sketch3.addConstraint(Sketcher.Constraint("Horizontal", 20))
sketch3.addConstraint(Sketcher.Constraint("Vertical", 21))
sketch3.addConstraint(Sketcher.Constraint("Horizontal", 22))
sketch3.addConstraint(Sketcher.Constraint("Horizontal", 26))
sketch3.addConstraint(Sketcher.Constraint("Vertical", 27))
sketch3.addConstraint(Sketcher.Constraint("Horizontal", 28))
sketch3.addConstraint(Sketcher.Constraint("Horizontal", 31))
sketch3.addConstraint(Sketcher.Constraint("Horizontal", 33))
sketch3.addConstraint(Sketcher.Constraint("Vertical", 34))
sketch3.addConstraint(Sketcher.Constraint("Horizontal", 35))
sketch3.addConstraint(Sketcher.Constraint("Horizontal", 38))
sketch3.addConstraint(Sketcher.Constraint("Vertical", 39))
sketch3.addConstraint(Sketcher.Constraint("Vertical", 52))
sketch3.addConstraint(Sketcher.Constraint("Horizontal", 53))
sketch3.addConstraint(Sketcher.Constraint("Horizontal", 56))
sketch3.addConstraint(Sketcher.Constraint("Vertical", 57))
sketch3.addConstraint(Sketcher.Constraint("Horizontal", 58))
sketch3.addConstraint(Sketcher.Constraint("Vertical", 59))
sketch3.addConstraint(Sketcher.Constraint("Horizontal", 60))
sketch3.addConstraint(Sketcher.Constraint("Horizontal", 64))
sketch3.addConstraint(Sketcher.Constraint("Horizontal", 66))
sketch3.addConstraint(Sketcher.Constraint("Vertical", 67))
sketch3.addConstraint(Sketcher.Constraint("Vertical", 79))
sketch3.addConstraint(Sketcher.Constraint("Horizontal", 80))
sketch3.addConstraint(Sketcher.Constraint("DistanceY", 19, 2, 19, 1, Q("0.094 in")))
sketch3.addConstraint(Sketcher.Constraint("DistanceY", 57, 1, 57, 2, Q("0.094 in")))
sketch3.addConstraint(Sketcher.Constraint("DistanceX", 33, 1, 33, 2, Q("0.0321 in")))
sketch3.addConstraint(Sketcher.Constraint("DistanceX", 56, 2, 56, 1, Q("0.0334 in")))
sketch3.addConstraint(Sketcher.Constraint("DistanceX", 66, 2, 66, 1, Q("0.2671 in")))
sketch3.addConstraint(Sketcher.Constraint("DistanceX", 20, 2, 20, 1, 7.6653))
sketch3.addConstraint(Sketcher.Constraint("DistanceX", 22, 1, 22, 2, 5.434))
sketch3.addConstraint(Sketcher.Constraint("DistanceX", 26, 2, 26, 1, 3.804))
sketch3.addConstraint(Sketcher.Constraint("DistanceX", 53, 2, 53, 1, 4.9894))
sketch3.addConstraint(Sketcher.Constraint("DistanceX", 58, 1, 58, 2, 7.6653))
sketch3.addConstraint(Sketcher.Constraint("DistanceY", 67, 1, 67, 2, 2.3135))
pad2 = body.newObject("PartDesign::Pad", "Pad001")
pad2.Profile = sketch3
pad2.Length = Q("0.08 in")
pad2.Reversed = True

doc.recompute()
